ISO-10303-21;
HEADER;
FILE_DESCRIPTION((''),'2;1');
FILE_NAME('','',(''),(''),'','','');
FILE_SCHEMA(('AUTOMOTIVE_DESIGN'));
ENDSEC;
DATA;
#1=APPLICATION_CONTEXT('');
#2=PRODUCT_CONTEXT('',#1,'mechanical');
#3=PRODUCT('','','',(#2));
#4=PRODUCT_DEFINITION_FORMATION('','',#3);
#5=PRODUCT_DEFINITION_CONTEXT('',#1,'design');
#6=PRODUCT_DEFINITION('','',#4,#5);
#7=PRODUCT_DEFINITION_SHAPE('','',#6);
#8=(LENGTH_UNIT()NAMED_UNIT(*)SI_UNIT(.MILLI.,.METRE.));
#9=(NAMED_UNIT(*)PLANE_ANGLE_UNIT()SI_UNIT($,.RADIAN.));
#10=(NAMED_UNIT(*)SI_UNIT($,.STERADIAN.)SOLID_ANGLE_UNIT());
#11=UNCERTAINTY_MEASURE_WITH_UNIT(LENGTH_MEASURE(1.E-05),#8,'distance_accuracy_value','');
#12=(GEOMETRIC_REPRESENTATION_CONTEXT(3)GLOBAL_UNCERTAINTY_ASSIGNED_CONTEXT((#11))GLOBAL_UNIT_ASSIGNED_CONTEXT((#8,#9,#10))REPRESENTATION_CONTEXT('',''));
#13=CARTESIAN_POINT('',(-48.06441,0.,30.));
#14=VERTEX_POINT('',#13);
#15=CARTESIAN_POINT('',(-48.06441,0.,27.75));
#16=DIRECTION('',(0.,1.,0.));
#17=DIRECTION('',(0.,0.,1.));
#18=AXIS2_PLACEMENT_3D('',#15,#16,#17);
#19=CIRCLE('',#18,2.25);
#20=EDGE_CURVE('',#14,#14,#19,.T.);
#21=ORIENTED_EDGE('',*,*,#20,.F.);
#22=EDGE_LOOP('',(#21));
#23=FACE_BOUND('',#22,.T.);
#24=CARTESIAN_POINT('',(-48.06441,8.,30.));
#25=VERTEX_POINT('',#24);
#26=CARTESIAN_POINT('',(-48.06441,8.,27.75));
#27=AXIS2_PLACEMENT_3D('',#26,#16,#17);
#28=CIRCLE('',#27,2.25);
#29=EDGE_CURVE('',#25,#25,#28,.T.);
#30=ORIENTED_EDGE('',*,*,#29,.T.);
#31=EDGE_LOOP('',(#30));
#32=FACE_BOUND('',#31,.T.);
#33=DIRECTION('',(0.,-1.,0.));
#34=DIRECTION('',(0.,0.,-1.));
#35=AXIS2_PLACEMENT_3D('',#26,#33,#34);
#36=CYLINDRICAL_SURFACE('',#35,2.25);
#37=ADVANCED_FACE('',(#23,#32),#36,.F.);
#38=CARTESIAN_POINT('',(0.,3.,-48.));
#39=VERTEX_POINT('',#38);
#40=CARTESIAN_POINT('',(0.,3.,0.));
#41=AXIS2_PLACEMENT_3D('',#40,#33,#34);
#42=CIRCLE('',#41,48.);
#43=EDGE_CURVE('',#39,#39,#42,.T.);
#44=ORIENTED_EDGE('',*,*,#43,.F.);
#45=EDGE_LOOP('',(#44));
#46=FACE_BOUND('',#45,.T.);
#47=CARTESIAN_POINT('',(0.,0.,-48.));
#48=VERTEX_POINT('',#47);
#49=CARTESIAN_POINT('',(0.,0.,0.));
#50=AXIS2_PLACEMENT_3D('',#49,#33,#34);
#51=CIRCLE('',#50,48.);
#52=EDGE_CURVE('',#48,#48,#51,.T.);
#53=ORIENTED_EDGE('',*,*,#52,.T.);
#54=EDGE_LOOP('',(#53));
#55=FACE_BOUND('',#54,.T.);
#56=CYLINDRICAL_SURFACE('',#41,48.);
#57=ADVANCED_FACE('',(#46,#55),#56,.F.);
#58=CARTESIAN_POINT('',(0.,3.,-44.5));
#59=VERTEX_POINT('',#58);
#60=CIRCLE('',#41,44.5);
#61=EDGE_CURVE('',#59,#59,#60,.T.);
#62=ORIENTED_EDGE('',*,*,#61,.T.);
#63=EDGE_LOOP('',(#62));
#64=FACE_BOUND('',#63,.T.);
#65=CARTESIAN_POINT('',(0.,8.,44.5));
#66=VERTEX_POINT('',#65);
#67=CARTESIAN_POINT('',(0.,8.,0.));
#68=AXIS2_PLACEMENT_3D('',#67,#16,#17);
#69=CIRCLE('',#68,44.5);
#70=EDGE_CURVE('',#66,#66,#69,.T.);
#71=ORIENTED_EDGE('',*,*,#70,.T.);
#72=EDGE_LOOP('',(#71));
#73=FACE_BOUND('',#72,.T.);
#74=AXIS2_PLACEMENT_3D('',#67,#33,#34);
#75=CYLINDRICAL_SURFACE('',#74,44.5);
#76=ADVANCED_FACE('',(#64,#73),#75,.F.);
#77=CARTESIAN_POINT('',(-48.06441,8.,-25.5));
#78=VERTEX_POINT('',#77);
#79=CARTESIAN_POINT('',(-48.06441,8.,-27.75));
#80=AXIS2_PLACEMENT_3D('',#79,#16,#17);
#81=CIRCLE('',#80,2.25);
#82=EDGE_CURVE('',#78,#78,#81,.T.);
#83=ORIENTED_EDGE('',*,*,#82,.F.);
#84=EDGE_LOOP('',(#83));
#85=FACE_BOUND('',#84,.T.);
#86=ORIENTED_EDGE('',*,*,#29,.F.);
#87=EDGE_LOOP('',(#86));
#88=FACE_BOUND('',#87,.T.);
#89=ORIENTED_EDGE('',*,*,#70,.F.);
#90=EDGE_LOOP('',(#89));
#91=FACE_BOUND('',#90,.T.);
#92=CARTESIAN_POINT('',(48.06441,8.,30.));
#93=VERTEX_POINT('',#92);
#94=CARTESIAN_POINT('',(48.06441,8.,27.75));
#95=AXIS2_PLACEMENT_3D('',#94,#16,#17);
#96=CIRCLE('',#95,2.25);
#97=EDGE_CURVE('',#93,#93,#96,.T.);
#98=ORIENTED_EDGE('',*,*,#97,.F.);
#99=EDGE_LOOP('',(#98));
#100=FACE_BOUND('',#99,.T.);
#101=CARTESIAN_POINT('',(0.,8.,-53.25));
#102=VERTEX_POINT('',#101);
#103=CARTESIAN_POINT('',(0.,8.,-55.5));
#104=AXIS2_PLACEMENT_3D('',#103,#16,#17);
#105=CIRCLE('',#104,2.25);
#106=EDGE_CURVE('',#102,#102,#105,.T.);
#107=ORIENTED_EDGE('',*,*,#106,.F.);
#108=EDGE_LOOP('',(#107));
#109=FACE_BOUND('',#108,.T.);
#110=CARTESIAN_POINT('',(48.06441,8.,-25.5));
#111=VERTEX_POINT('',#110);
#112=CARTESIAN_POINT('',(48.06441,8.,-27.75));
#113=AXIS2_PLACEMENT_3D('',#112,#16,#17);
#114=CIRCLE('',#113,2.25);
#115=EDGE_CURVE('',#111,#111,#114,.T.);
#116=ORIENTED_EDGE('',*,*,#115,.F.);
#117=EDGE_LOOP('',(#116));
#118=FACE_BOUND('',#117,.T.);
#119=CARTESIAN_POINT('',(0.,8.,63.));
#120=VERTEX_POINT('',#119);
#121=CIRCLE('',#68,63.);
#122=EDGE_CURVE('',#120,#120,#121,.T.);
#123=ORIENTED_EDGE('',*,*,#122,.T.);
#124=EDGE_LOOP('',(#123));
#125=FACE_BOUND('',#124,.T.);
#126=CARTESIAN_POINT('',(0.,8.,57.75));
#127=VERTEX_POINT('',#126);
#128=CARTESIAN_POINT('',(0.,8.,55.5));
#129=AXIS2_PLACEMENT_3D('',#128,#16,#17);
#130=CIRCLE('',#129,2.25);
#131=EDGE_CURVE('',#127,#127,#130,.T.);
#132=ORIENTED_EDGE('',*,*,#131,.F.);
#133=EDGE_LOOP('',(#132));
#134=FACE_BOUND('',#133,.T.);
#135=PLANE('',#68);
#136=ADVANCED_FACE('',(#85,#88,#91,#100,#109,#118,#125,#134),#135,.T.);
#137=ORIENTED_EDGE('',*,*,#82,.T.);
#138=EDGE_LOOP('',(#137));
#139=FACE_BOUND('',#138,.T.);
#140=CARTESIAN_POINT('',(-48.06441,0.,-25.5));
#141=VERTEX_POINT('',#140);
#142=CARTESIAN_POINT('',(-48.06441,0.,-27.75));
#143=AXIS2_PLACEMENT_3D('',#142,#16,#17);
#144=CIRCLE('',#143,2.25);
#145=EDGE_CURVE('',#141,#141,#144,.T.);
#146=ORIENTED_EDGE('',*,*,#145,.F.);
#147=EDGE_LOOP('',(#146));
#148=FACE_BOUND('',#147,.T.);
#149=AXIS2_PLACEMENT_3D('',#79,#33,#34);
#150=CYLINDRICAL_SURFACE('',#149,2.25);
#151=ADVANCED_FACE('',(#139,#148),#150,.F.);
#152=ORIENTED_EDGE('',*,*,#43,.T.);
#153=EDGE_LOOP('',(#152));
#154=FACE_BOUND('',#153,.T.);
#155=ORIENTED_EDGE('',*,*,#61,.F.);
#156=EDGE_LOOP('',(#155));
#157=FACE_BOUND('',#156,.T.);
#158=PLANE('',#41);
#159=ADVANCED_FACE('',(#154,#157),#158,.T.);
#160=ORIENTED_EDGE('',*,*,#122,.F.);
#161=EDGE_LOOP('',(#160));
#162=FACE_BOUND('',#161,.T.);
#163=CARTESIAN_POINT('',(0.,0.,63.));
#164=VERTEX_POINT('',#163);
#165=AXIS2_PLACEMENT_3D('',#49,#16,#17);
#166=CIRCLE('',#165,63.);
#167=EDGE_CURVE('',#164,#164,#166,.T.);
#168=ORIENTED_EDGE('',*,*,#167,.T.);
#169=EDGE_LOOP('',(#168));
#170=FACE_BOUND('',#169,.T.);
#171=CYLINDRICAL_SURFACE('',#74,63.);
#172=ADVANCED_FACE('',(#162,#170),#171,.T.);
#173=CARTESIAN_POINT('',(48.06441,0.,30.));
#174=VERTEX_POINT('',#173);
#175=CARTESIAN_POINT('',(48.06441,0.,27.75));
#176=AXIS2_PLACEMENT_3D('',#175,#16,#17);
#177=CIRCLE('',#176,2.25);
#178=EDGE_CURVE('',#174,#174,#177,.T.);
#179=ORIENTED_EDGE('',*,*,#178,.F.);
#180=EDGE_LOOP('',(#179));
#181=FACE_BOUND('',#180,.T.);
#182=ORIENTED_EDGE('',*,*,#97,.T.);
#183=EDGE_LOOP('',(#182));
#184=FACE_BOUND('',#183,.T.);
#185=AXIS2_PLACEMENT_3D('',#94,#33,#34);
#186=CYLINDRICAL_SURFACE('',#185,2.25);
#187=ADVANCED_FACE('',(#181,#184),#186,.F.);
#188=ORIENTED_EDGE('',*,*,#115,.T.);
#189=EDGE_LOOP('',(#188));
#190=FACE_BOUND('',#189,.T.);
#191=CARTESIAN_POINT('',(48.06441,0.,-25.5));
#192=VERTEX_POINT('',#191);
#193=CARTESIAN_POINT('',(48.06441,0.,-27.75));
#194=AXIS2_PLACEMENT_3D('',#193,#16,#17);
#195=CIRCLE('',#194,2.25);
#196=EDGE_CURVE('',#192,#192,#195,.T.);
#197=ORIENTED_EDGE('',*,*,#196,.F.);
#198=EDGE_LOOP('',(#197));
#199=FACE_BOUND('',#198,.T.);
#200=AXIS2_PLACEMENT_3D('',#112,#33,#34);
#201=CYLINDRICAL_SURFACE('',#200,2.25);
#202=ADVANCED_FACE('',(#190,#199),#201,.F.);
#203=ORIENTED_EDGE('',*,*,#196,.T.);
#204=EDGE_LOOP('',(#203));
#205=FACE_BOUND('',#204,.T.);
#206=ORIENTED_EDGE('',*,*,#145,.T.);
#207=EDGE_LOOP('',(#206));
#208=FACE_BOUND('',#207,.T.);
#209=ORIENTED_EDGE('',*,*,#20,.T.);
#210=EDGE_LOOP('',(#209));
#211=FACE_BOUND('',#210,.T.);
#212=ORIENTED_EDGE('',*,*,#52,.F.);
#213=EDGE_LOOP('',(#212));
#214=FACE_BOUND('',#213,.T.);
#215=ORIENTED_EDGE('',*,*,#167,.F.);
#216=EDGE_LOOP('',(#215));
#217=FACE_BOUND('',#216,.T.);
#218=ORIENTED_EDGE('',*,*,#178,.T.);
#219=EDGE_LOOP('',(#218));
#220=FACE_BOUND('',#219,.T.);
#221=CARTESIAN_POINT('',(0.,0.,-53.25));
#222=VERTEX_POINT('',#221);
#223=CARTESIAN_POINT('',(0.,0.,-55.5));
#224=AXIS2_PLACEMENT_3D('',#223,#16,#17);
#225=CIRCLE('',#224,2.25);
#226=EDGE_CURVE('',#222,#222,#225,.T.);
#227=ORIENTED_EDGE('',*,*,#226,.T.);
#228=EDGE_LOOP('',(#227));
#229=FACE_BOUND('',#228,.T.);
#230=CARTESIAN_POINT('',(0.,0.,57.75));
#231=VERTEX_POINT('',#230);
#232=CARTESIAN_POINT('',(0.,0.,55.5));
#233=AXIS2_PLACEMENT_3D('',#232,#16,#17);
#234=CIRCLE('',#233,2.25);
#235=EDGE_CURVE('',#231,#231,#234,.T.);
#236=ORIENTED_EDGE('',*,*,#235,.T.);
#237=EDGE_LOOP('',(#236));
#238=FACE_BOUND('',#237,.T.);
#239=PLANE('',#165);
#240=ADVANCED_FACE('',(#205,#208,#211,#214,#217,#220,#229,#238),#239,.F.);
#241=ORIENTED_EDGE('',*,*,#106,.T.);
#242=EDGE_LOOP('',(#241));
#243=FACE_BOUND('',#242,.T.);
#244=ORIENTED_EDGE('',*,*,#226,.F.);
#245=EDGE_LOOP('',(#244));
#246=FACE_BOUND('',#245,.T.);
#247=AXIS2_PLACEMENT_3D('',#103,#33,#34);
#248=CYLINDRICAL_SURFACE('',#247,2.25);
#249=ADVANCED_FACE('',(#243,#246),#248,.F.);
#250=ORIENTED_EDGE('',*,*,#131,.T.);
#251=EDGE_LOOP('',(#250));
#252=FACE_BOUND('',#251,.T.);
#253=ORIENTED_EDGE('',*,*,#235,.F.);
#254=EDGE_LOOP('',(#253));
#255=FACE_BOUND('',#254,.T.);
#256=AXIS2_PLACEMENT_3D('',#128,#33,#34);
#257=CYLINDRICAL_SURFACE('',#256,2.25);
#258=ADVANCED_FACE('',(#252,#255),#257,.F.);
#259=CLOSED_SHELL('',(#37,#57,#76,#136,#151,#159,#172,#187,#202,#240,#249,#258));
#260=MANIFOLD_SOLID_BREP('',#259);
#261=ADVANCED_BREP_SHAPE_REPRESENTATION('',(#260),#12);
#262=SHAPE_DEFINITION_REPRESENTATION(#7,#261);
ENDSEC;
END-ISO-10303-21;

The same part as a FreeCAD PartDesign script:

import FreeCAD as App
import Part
import Sketcher

doc = App.newDocument("Part")
body = doc.addObject("PartDesign::Body", "Body")

sketch1 = body.newObject("Sketcher::SketchObject", "Sketch")
sketch1.AttachmentSupport = (doc.getObject("XZ_Plane"), [""])
sketch1.MapMode = "FlatFace"
sketch1.addGeometry([
    Part.Circle(App.Vector(0, 0, 0), App.Vector(0, 0, 1), 63),
    Part.Circle(App.Vector(-48.1, -27.8, 0), App.Vector(0, 0, 1), 2.2),
    Part.Circle(App.Vector(0, -55.5, 0), App.Vector(0, 0, 1), 2.2),
    Part.Circle(App.Vector(-48.1, 27.8, 0), App.Vector(0, 0, 1), 2.2),
    Part.Circle(App.Vector(48.1, -27.8, 0), App.Vector(0, 0, 1), 2.2),
    Part.Circle(App.Vector(0, 0, 0), App.Vector(0, 0, 1), 44.5),
    Part.Circle(App.Vector(0, 55.5, 0), App.Vector(0, 0, 1), 2.2),
    Part.Circle(App.Vector(48.1, 27.8, 0), App.Vector(0, 0, 1), 2.2),
], False)
sketch1.addConstraint([
    Sketcher.Constraint("Coincident", 0, 3, -1, 1),
    Sketcher.Constraint("Coincident", 5, 3, -1, 1),
    Sketcher.Constraint("Equal", 1, 2),
    Sketcher.Constraint("Equal", 2, 3),
    Sketcher.Constraint("Equal", 3, 4),
    Sketcher.Constraint("Equal", 4, 6),
    Sketcher.Constraint("Equal", 6, 7),
    Sketcher.Constraint("Symmetric", 3, 3, 4, 3, -1, 1),
    Sketcher.Constraint("Symmetric", 2, 3, 6, 3, -1, 1),
    Sketcher.Constraint("Symmetric", 1, 3, 7, 3, -1, 1),
    Sketcher.Constraint("Symmetric", 1, 3, 4, 3, -2),
    Sketcher.Constraint("PointOnObject", 2, 3, -2),
    Sketcher.Constraint("Diameter", 0, 126.0),
    Sketcher.Constraint("Diameter", 5, 89.0),
    Sketcher.Constraint("Diameter", 1, 4.5),
    Sketcher.Constraint("DistanceY", 2, 3, -1, 1, 55.5),
    Sketcher.Constraint("DistanceY", 1, 3, 3, 3, 55.5),
    Sketcher.Constraint("DistanceX", 1, 3, -1, 1, 48.06441),
])
pad1 = body.newObject("PartDesign::Pad", "Pad")
pad1.Profile = sketch1
pad1.Length = 8
pad1.Reversed = True

sketch2 = body.newObject("Sketcher::SketchObject", "Sketch001")
sketch2.AttachmentSupport = (doc.getObject("XZ_Plane"), [""])
sketch2.MapMode = "FlatFace"
sketch2.addGeometry(Part.Circle(App.Vector(0, 0, 0), App.Vector(0, 0, 1), 48), False)
sketch2.addConstraint([
    Sketcher.Constraint("Coincident", 0, 3, -1, 1),
    Sketcher.Constraint("Diameter", 0, 96.0),
])
pocket1 = body.newObject("PartDesign::Pocket", "Pocket")
pocket1.Profile = sketch2
pocket1.Length = 3

doc.recompute()
